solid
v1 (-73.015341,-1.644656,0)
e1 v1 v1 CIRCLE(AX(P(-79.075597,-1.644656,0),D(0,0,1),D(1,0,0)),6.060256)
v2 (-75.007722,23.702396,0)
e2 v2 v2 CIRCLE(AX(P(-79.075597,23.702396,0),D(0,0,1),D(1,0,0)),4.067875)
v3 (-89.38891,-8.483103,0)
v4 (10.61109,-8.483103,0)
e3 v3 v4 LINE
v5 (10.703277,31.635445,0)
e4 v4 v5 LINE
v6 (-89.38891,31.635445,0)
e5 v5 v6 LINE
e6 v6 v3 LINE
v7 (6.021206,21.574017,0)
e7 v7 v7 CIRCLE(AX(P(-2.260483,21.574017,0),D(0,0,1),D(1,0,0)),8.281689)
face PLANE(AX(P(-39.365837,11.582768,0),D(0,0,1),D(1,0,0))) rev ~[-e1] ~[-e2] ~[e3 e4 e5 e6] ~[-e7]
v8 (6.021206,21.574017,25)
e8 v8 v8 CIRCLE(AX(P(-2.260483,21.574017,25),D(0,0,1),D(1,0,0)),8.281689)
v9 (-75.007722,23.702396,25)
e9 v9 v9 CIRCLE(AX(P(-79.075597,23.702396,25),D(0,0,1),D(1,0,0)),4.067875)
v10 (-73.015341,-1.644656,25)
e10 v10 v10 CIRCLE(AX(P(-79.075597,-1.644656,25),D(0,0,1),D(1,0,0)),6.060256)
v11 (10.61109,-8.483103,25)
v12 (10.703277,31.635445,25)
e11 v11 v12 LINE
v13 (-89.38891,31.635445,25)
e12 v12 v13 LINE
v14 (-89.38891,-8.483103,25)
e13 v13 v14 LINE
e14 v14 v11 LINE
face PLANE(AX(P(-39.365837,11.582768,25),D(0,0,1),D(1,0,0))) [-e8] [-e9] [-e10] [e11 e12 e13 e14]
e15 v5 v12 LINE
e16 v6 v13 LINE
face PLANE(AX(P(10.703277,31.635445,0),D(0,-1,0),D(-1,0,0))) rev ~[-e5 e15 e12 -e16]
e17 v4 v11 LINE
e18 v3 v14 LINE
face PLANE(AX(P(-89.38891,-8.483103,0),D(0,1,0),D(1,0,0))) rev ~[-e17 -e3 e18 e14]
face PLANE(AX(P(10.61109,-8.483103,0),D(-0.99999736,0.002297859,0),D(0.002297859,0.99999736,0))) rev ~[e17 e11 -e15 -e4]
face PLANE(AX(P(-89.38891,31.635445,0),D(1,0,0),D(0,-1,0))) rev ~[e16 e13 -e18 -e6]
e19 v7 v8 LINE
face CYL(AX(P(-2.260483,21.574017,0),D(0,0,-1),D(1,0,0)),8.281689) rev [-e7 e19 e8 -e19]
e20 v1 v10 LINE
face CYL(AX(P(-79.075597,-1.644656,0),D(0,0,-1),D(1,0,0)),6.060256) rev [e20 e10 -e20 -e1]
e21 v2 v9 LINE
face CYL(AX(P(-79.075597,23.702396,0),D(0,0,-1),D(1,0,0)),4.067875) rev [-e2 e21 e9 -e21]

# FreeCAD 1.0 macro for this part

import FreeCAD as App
import Part
import Sketcher
Q = App.Units.Quantity

doc = App.newDocument("Part")
body = doc.addObject("PartDesign::Body", "Body")

# Sketch on XY plane
sketch1 = body.newObject("Sketcher::SketchObject", "Sketch")
sketch1.AttachmentSupport = (doc.getObject("XY_Plane"), [""])
sketch1.MapMode = "FlatFace"
sketch1.addGeometry([
    Part.LineSegment(App.Vector(-89.4, 31.6, 0), App.Vector(-89.4, -8.5, 0)),  # 0
    Part.LineSegment(App.Vector(-89.4, -8.5, 0), App.Vector(10.6, -8.5, 0)),  # 1
    Part.LineSegment(App.Vector(10.6, -8.5, 0), App.Vector(10.7, 31.6, 0)),  # 2
    Part.LineSegment(App.Vector(10.7, 31.6, 0), App.Vector(-89.4, 31.6, 0)),  # 3
    Part.Circle(App.Vector(-79.1, -1.6, 0), App.Vector(0, 0, 1), 6.1),  # 4
    Part.Circle(App.Vector(-79.1, 23.7, 0), App.Vector(0, 0, 1), 4.1),  # 5
    Part.Circle(App.Vector(-2.3, 21.6, 0), App.Vector(0, 0, 1), 8.3),  # 6
], False)
sketch1.addConstraint([
    Sketcher.Constraint("Coincident", 0, 2, 1, 1),
    Sketcher.Constraint("Coincident", 1, 2, 2, 1),
    Sketcher.Constraint("Coincident", 2, 2, 3, 1),
    Sketcher.Constraint("Coincident", 3, 2, 0, 1),
    Sketcher.Constraint("Vertical", 0),
    Sketcher.Constraint("Horizontal", 1),
    Sketcher.Constraint("Horizontal", 3),
    Sketcher.Constraint("Vertical", 4, 3, 5, 3),
    Sketcher.Constraint("DistanceX", 1, 1, 1, 2, Q("100 mm")),
    Sketcher.Constraint("Diameter", 5, Q("8.13575 mm")),
    Sketcher.Constraint("Diameter", 6, Q("16.563378 mm")),
    Sketcher.Constraint("Diameter", 4, Q("12.120512 mm")),
    Sketcher.Constraint("DistanceY", 0, 2, 0, 1, Q("40.118548 mm")),
    Sketcher.Constraint("DistanceY", 0, 2, 5, 3, Q("32.185499 mm")),
    Sketcher.Constraint("DistanceY", 4, 3, 2, 2, Q("33.280101 mm")),
    Sketcher.Constraint("DistanceX", 3, 2, 3, 1, Q("100.092187 mm")),
    Sketcher.Constraint("DistanceX", 0, 2, -1, 1, Q("89.38891 mm")),
    Sketcher.Constraint("DistanceY", 6, 3, 5, 3, Q("2.128379 mm")),
    Sketcher.Constraint("DistanceX", 6, 3, 2, 2, Q("12.96376 mm")),
    Sketcher.Constraint("DistanceX", 4, 3, -1, 1, Q("79.075597 mm")),
    Sketcher.Constraint("DistanceY", 4, 3, -1, 1, Q("1.644656 mm")),
])
pad1 = body.newObject("PartDesign::Pad", "Pad")
pad1.Profile = sketch1
pad1.Length = 25

doc.recompute()
